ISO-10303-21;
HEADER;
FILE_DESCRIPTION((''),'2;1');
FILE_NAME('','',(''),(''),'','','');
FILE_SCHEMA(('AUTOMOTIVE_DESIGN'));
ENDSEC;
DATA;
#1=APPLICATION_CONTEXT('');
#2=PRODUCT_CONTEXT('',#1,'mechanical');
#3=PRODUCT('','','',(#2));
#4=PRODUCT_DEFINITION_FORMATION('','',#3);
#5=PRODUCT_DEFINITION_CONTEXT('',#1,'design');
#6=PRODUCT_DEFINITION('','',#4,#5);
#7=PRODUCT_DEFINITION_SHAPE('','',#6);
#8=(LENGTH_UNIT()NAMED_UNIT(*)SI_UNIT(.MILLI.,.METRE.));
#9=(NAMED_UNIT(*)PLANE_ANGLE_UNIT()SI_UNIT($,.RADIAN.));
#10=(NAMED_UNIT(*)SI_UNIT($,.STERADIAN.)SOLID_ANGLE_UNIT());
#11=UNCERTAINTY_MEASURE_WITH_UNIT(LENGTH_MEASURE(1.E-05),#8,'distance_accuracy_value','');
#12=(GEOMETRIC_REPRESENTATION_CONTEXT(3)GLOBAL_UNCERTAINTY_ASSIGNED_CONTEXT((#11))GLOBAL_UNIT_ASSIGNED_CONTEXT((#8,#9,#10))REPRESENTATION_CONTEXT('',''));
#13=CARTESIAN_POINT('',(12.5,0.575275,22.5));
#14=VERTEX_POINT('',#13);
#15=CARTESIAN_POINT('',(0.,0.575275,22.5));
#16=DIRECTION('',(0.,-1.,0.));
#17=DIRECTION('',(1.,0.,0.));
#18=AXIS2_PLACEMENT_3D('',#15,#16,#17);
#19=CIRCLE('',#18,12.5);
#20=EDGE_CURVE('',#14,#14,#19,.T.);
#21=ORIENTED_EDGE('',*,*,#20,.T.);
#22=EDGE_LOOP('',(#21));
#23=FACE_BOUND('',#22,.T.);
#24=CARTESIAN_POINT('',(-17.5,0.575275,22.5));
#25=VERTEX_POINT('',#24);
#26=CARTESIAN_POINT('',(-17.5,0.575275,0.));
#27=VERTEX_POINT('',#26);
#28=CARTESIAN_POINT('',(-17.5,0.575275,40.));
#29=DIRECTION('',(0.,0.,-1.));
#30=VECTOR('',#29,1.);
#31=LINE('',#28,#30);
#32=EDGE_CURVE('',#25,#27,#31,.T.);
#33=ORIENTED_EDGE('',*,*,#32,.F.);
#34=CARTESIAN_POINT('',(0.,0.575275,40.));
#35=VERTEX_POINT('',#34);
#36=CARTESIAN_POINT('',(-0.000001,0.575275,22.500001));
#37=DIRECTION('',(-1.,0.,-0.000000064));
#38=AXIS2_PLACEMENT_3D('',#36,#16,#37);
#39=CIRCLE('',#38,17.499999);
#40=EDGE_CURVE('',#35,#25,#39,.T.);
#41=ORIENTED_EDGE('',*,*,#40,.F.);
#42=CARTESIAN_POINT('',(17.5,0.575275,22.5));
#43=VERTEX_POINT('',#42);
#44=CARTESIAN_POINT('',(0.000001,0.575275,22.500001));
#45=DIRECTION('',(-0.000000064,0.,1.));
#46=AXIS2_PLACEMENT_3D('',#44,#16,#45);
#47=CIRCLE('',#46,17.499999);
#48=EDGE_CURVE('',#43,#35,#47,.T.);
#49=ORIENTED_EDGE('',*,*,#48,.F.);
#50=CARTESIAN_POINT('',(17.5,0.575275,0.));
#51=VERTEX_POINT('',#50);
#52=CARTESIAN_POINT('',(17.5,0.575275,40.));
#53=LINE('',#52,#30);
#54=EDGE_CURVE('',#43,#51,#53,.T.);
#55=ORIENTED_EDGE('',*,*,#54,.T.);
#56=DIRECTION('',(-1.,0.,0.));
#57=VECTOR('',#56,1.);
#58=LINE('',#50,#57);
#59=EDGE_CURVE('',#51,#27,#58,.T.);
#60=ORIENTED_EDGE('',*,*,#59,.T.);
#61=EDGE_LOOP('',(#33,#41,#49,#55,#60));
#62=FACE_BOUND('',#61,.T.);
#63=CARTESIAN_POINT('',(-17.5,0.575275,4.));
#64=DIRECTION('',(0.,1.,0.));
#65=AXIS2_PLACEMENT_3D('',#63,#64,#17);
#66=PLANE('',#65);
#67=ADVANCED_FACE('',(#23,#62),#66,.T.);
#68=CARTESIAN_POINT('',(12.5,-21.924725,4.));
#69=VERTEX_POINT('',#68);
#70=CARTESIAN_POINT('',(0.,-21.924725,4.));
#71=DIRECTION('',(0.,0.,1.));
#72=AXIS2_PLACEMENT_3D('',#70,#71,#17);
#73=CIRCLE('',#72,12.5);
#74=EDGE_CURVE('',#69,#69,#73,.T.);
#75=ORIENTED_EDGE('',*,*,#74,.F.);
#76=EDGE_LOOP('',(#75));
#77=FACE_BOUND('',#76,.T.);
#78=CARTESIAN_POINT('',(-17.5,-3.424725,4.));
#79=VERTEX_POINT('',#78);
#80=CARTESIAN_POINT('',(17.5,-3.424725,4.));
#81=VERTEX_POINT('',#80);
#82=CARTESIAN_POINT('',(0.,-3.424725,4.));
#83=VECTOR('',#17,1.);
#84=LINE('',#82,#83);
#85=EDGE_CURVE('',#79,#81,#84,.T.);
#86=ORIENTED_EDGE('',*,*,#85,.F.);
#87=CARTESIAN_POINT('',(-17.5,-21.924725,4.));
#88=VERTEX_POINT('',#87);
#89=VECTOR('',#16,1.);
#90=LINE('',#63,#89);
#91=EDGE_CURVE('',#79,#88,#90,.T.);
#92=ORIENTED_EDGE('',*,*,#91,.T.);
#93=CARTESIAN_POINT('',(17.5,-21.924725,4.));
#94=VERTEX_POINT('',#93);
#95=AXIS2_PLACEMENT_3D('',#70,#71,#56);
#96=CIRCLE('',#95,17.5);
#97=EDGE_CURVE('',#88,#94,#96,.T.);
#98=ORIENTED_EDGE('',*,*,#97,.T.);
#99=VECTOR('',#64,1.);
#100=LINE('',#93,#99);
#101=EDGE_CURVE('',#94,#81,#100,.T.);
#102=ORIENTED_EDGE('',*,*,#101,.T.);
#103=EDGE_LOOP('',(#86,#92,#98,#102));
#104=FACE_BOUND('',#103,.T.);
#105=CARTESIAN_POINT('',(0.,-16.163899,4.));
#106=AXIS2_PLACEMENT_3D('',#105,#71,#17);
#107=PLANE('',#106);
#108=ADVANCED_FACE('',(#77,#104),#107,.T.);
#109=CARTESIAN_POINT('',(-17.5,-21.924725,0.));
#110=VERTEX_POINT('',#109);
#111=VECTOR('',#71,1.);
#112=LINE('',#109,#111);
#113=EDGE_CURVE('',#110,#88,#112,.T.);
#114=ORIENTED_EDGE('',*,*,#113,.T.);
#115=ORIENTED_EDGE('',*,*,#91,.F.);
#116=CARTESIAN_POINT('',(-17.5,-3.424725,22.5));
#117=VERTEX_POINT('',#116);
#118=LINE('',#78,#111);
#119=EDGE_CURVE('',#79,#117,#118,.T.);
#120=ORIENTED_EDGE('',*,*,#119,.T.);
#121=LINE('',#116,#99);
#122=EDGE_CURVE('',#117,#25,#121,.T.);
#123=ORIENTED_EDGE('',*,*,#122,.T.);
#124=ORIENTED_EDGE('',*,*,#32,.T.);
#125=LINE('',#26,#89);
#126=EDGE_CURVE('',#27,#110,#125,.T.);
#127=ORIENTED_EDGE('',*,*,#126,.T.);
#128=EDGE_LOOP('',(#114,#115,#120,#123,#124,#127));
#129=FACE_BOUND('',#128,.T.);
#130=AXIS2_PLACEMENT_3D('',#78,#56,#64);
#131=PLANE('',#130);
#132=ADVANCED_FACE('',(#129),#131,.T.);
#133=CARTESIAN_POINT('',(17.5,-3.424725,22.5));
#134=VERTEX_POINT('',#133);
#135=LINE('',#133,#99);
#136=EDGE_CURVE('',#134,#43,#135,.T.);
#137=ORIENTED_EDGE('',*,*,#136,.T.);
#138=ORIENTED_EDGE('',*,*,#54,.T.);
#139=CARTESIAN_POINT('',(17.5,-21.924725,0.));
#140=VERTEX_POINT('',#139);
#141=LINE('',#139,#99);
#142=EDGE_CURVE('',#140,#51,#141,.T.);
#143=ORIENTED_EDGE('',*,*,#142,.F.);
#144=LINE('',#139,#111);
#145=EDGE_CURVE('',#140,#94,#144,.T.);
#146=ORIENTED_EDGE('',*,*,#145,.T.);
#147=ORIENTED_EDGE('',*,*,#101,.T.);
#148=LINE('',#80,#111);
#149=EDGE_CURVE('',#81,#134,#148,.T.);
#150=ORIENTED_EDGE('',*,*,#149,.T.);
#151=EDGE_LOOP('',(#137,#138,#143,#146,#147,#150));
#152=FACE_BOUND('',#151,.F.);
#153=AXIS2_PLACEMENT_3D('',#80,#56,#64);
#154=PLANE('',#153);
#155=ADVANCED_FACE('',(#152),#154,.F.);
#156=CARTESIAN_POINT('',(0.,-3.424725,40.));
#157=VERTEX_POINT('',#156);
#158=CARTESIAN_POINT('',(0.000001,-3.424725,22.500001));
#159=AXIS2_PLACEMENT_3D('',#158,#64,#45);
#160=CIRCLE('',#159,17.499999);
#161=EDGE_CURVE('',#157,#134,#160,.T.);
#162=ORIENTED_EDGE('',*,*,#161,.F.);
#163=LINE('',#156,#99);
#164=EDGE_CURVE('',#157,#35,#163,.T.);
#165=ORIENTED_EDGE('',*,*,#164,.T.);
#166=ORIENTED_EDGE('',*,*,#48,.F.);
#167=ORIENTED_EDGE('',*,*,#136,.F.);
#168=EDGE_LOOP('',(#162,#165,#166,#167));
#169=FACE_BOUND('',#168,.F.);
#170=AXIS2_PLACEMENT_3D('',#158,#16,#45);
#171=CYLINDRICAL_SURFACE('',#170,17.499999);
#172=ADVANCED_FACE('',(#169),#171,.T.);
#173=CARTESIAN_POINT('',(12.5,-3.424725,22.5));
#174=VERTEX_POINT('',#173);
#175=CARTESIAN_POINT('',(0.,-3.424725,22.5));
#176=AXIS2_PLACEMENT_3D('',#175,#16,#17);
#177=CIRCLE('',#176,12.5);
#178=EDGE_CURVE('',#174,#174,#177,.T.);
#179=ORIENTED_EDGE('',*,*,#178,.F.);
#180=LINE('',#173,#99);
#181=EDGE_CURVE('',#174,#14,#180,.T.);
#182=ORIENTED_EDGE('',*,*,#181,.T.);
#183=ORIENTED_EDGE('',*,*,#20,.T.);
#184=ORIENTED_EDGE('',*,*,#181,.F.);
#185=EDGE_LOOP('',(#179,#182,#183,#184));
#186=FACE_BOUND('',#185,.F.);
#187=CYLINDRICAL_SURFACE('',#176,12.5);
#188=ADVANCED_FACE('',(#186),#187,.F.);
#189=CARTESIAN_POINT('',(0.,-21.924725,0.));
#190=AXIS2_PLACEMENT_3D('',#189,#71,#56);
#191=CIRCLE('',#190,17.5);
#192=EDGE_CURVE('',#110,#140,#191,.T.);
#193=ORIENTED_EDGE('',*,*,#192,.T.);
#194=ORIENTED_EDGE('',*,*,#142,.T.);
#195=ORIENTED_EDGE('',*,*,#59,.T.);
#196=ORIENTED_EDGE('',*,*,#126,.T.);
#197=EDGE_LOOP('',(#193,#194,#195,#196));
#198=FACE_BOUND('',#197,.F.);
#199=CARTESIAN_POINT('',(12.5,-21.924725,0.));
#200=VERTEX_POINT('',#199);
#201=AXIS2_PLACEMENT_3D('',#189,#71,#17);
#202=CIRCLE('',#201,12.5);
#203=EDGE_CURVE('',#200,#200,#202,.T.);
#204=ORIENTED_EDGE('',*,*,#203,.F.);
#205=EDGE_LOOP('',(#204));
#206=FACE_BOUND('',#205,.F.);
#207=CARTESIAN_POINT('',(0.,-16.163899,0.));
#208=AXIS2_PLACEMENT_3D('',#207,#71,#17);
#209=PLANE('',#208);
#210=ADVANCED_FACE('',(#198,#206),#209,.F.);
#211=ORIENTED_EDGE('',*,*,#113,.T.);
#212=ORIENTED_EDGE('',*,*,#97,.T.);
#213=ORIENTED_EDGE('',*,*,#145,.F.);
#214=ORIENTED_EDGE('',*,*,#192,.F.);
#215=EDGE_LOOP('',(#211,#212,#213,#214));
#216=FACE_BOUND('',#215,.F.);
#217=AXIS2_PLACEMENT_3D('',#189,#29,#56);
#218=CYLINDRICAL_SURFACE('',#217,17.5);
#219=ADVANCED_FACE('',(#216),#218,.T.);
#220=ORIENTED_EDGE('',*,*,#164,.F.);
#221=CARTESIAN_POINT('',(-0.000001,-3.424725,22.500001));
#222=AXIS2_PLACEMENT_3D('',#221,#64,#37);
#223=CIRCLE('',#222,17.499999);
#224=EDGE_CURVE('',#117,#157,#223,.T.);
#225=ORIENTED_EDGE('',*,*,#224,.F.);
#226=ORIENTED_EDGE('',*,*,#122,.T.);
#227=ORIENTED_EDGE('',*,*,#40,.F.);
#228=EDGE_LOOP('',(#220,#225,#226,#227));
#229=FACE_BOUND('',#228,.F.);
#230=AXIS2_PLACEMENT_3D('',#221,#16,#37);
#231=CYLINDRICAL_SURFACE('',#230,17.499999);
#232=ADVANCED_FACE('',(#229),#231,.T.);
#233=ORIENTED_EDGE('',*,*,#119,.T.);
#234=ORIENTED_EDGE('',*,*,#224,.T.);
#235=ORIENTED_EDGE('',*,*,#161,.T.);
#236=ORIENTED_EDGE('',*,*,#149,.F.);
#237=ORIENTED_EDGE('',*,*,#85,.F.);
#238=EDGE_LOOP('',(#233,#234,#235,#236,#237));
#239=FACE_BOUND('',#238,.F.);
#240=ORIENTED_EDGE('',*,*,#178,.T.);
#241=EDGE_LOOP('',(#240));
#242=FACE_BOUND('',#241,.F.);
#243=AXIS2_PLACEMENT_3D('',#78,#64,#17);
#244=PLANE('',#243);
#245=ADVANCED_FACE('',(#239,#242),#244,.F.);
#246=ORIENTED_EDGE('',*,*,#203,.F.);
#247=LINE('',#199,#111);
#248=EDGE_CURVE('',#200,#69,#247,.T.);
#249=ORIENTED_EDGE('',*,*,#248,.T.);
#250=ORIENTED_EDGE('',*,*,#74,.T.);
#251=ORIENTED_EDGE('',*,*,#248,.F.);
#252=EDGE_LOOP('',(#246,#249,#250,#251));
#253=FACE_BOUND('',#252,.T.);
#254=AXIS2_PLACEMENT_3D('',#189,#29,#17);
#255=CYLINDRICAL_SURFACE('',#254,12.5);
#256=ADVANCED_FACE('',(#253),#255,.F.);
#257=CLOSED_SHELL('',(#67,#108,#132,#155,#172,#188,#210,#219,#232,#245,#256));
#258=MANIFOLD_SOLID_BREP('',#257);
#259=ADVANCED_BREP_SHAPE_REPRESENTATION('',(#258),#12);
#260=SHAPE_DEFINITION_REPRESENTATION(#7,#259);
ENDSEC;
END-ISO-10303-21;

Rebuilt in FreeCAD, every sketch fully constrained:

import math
import FreeCAD as App
import Part
import Sketcher
from FreeCAD import Vector


def add_polygon(sketch, points):
    """Adds a closed chain of lines whose ends are joined by coincident constraints."""
    first, n = sketch.GeometryCount, len(points)
    for a, b in zip(points, points[1:] + points[:1]):
        sketch.addGeometry(Part.LineSegment(App.Vector(*a, 0), App.Vector(*b, 0)), False)
    for i in range(n):
        sketch.addConstraint(Sketcher.Constraint("Coincident", first + i, 2, first + (i + 1) % n, 1))

doc = App.newDocument("Part")
body = doc.addObject("PartDesign::Body", "Body")

# Sketch on XY plane
sketch1 = body.newObject("Sketcher::SketchObject", "Sketch")
sketch1.AttachmentSupport = (doc.getObject("XY_Plane"), [""])
sketch1.MapMode = "FlatFace"
sketch1.addGeometry(Part.LineSegment(Vector(18, 1, 0), Vector(-18, 1, 0)), False)
sketch1.addGeometry(Part.LineSegment(Vector(-18, 1, 0), Vector(-18, -22, 0)), False)
sketch1.addGeometry(Part.ArcOfCircle(Part.Circle(Vector(0, -22, 0), Vector(0, 0, 1), 18), math.radians(180), math.radians(360)), False)
sketch1.addGeometry(Part.LineSegment(Vector(18, -22, 0), Vector(18, 1, 0)), False)
sketch1.addGeometry(Part.Circle(Vector(0, -22, 0), Vector(0, 0, 1), 12), False)
sketch1.addConstraint(Sketcher.Constraint("Coincident", 0, 2, 1, 1))
sketch1.addConstraint(Sketcher.Constraint("Tangent", 1, 2, 2, 1))
sketch1.addConstraint(Sketcher.Constraint("Tangent", 2, 2, 3, 1))
sketch1.addConstraint(Sketcher.Constraint("Coincident", 3, 2, 0, 1))
sketch1.addConstraint(Sketcher.Constraint("Horizontal", 0))
sketch1.addConstraint(Sketcher.Constraint("Vertical", 1))
sketch1.addConstraint(Sketcher.Constraint("Vertical", 3))
sketch1.addConstraint(Sketcher.Constraint("Coincident", 4, 3, 2, 3))
sketch1.addConstraint(Sketcher.Constraint("PointOnObject", 2, 3, -2))
sketch1.addConstraint(Sketcher.Constraint("Diameter", 4, 25.0))
sketch1.addConstraint(Sketcher.Constraint("Radius", 2, 17.5))
sketch1.addConstraint(Sketcher.Constraint("DistanceY", 1, 2, 1, 1, 22.5))
sketch1.addConstraint(Sketcher.Constraint("DistanceY", 2, 3, -1, 1, 21.924725))
pad1 = body.newObject("PartDesign::Pad", "Pad")
pad1.Profile = sketch1
pad1.Length = 4

# Sketch on XY plane
sketch2 = body.newObject("Sketcher::SketchObject", "Sketch001")
sketch2.AttachmentSupport = (doc.getObject("XY_Plane"), [""])
sketch2.MapMode = "FlatFace"
sketch2.AttachmentOffset = App.Placement(Vector(0, 0, 4), App.Rotation())
add_polygon(sketch2, [(-17.5, 0.6), (-17.5, -3.4), (17.5, -3.4), (17.5, 0.6)])  # lines 0-3
sketch2.addConstraint(Sketcher.Constraint("Vertical", 0))
sketch2.addConstraint(Sketcher.Constraint("Horizontal", 1))
sketch2.addConstraint(Sketcher.Constraint("Vertical", 2))
sketch2.addConstraint(Sketcher.Constraint("Horizontal", 3))
sketch2.addConstraint(Sketcher.Constraint("DistanceX", 1, 1, 1, 2, 35.0))
sketch2.addConstraint(Sketcher.Constraint("DistanceY", 0, 2, 0, 1, 4.0))
sketch2.addConstraint(Sketcher.Constraint("DistanceX", 0, 2, -1, 1, 17.5))
sketch2.addConstraint(Sketcher.Constraint("DistanceY", 0, 2, -1, 1, 3.424725))
pad2 = body.newObject("PartDesign::Pad", "Pad001")
pad2.Profile = sketch2
pad2.Length = 36

# Sketch on XZ plane
sketch3 = body.newObject("Sketcher::SketchObject", "Sketch002")
sketch3.AttachmentSupport = (doc.getObject("XZ_Plane"), [""])
sketch3.MapMode = "FlatFace"
sketch3.AttachmentOffset = App.Placement(Vector(0, 0, 3.424725), App.Rotation())
sketch3.addGeometry(Part.ArcOfCircle(Part.Circle(Vector(0, 23, 0), Vector(0, 0, 1), 17), math.radians(90), math.radians(180)), False)
sketch3.addGeometry(Part.LineSegment(Vector(0, 40, 0), Vector(-18, 40, 0)), False)
sketch3.addGeometry(Part.LineSegment(Vector(-18, 40, 0), Vector(-18, 22, 0)), False)
sketch3.addGeometry(Part.ArcOfCircle(Part.Circle(Vector(0, 23, 0), Vector(0, 0, 1), 17), math.radians(0), math.radians(90)), False)
sketch3.addGeometry(Part.LineSegment(Vector(18, 22, 0), Vector(18, 40, 0)), False)
sketch3.addGeometry(Part.LineSegment(Vector(18, 40, 0), Vector(0, 40, 0)), False)
sketch3.addGeometry(Part.Circle(Vector(0, 22, 0), Vector(0, 0, 1), 12), False)
sketch3.addConstraint(Sketcher.Constraint("Tangent", 0, 1, 1, 1))
sketch3.addConstraint(Sketcher.Constraint("Coincident", 1, 2, 2, 1))
sketch3.addConstraint(Sketcher.Constraint("Tangent", 2, 2, 0, 2))
sketch3.addConstraint(Sketcher.Constraint("Tangent", 3, 1, 4, 1))
sketch3.addConstraint(Sketcher.Constraint("Coincident", 4, 2, 5, 1))
sketch3.addConstraint(Sketcher.Constraint("Tangent", 5, 2, 3, 2))
sketch3.addConstraint(Sketcher.Constraint("Horizontal", 1))
sketch3.addConstraint(Sketcher.Constraint("Vertical", 2))
sketch3.addConstraint(Sketcher.Constraint("Vertical", 4))
sketch3.addConstraint(Sketcher.Constraint("Horizontal", 5))
sketch3.addConstraint(Sketcher.Constraint("Coincident", 3, 3, 0, 3))
sketch3.addConstraint(Sketcher.Constraint("Coincident", 6, 3, 0, 3))
sketch3.addConstraint(Sketcher.Constraint("Equal", 0, 3))
sketch3.addConstraint(Sketcher.Constraint("PointOnObject", 0, 3, -2))
sketch3.addConstraint(Sketcher.Constraint("Diameter", 6, 25.0))
sketch3.addConstraint(Sketcher.Constraint("Radius", 0, 17.499999))
sketch3.addConstraint(Sketcher.Constraint("DistanceY", -1, 1, 0, 1, 40.0))
pocket1 = body.newObject("PartDesign::Pocket", "Pocket")
pocket1.Profile = sketch3
pocket1.Length = 25

doc.recompute()
